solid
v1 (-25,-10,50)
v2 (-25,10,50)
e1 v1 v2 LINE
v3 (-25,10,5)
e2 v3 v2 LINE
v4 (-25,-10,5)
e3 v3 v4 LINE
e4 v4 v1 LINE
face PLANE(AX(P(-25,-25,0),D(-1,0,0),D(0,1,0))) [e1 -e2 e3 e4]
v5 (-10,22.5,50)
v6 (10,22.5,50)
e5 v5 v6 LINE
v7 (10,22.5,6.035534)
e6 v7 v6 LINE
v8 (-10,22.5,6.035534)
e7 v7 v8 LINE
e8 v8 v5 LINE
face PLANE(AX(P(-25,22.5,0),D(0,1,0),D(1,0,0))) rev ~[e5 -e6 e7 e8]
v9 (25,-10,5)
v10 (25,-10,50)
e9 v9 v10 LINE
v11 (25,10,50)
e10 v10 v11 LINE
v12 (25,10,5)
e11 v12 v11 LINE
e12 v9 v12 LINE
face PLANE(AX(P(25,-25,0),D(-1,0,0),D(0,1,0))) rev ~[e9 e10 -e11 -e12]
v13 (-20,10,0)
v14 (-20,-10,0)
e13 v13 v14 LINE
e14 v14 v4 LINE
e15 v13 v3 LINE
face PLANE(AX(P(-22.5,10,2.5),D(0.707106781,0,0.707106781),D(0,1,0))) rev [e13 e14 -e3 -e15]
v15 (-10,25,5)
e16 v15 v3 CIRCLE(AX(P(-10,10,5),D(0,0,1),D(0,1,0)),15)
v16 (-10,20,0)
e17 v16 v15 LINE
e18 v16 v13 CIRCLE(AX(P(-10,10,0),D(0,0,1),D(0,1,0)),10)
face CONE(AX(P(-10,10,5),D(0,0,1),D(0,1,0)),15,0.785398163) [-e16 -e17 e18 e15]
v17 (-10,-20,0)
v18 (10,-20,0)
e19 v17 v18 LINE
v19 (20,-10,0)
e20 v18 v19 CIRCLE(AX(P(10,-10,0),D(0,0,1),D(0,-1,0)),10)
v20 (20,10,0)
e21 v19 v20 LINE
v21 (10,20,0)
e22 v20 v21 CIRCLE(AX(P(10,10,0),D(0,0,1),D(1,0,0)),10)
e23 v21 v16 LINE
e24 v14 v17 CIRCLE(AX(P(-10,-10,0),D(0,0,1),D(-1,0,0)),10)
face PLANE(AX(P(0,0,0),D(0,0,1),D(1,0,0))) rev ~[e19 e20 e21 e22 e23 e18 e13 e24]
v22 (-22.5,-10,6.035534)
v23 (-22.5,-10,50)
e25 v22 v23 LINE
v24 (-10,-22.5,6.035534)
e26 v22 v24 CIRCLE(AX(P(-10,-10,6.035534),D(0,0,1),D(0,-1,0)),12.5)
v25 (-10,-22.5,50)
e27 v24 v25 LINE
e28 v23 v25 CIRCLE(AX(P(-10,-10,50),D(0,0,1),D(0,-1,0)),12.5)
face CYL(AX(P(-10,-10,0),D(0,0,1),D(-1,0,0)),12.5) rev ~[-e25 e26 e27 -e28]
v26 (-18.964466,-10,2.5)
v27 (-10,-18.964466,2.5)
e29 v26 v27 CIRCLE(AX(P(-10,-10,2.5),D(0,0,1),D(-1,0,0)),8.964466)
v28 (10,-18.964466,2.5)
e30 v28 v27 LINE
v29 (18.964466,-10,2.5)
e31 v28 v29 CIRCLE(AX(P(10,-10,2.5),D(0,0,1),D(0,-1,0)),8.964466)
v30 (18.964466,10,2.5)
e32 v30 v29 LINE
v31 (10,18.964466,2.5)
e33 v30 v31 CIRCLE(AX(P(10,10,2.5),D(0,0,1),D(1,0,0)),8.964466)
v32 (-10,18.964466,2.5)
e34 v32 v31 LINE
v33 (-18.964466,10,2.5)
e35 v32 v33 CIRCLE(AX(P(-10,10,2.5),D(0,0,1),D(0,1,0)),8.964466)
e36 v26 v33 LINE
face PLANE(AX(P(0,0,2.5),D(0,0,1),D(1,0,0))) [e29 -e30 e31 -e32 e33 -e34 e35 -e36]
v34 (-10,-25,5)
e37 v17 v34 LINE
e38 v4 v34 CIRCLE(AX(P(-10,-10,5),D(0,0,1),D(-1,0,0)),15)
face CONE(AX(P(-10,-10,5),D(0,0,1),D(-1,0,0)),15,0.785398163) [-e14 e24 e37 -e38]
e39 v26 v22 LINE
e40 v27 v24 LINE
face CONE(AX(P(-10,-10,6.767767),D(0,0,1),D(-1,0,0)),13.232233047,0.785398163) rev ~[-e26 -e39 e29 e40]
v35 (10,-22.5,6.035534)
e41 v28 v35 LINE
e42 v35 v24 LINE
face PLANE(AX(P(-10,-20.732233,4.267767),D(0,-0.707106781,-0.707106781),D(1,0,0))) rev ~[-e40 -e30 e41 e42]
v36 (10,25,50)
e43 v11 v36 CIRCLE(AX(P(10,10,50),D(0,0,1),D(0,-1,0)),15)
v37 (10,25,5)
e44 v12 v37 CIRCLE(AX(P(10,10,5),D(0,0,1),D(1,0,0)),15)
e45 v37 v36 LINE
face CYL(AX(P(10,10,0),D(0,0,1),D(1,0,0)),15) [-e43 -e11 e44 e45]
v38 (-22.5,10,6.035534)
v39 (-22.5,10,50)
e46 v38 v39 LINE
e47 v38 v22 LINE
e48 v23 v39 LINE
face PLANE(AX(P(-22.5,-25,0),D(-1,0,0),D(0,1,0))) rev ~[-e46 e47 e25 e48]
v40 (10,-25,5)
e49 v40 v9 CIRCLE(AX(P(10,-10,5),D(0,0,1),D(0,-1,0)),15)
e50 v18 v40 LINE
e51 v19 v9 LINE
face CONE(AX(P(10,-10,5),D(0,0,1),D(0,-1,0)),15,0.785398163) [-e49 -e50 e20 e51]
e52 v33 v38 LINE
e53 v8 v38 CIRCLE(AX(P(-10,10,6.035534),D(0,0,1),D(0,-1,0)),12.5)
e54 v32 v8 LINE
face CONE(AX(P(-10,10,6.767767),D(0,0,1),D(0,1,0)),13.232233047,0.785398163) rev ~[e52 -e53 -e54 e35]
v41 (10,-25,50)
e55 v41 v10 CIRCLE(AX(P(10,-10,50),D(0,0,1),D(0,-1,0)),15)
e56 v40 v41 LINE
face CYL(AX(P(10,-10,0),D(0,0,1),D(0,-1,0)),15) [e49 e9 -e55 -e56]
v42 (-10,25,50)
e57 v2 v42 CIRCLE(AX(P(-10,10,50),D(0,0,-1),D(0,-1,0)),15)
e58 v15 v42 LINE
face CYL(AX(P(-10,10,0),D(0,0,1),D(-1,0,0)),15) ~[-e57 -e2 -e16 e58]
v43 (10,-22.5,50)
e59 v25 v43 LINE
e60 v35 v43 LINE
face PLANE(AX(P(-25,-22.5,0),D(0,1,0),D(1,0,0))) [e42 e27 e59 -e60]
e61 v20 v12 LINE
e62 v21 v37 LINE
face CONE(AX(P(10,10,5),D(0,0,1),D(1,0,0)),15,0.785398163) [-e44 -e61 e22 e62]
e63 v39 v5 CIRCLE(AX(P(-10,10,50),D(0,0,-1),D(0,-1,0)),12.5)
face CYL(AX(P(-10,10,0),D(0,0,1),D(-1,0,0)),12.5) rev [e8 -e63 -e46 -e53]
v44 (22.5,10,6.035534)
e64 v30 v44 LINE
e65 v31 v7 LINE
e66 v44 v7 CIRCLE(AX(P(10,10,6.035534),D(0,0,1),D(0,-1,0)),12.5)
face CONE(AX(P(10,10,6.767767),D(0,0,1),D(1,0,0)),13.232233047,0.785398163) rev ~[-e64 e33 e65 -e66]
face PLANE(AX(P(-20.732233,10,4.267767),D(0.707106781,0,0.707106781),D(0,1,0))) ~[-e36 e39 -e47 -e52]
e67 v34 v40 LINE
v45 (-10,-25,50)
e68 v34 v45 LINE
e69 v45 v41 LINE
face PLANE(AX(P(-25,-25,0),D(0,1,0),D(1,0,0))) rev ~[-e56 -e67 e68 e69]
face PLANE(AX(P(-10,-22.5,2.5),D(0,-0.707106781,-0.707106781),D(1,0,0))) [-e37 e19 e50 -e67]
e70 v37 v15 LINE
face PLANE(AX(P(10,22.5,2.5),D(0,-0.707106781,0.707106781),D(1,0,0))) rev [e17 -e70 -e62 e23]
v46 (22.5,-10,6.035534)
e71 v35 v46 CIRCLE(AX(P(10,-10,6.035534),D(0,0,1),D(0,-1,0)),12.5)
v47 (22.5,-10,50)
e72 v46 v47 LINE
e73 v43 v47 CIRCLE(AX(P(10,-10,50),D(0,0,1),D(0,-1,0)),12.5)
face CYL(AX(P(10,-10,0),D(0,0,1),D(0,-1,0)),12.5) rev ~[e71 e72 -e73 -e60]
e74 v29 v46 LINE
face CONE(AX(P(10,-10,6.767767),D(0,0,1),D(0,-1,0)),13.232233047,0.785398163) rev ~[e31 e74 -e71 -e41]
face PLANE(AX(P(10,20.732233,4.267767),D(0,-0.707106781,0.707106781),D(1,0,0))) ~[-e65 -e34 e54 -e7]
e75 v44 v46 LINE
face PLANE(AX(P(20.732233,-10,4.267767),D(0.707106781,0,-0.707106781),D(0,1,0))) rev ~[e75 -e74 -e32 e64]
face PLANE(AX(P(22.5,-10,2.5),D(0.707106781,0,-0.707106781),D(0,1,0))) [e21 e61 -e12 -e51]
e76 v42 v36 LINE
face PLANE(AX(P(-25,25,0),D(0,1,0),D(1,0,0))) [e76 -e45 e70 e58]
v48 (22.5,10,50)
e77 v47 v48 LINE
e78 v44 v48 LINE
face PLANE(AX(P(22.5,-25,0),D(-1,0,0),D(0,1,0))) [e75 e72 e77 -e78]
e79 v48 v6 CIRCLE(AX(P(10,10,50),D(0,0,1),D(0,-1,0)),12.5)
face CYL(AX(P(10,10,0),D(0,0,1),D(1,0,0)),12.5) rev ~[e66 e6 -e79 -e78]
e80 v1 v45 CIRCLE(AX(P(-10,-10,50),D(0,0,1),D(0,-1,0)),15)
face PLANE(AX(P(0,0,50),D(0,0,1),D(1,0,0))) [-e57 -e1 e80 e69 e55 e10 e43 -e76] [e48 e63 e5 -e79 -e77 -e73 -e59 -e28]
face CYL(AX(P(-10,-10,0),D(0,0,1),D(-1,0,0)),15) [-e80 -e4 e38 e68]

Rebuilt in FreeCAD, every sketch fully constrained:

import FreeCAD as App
import Part
import Sketcher
Q = App.Units.Quantity


def edges_at(feature, points):
    """Names of the edges that pass closest to the given points."""
    edges = feature.Shape.Edges
    near = lambda p: min(range(len(edges)), key=lambda i: edges[i].distToShape(Part.Vertex(*p))[0])
    return sorted({f"Edge{near(p) + 1}" for p in points})


def faces_at(feature, points):
    """Names of the faces that lie closest to the given points."""
    faces = feature.Shape.Faces
    near = lambda p: min(range(len(faces)), key=lambda i: faces[i].distToShape(Part.Vertex(*p))[0])
    return sorted({f"Face{near(p) + 1}" for p in points})

doc = App.newDocument("Part")
body = doc.addObject("PartDesign::Body", "Body")

# Sketch on XY plane
sketch1 = body.newObject("Sketcher::SketchObject", "Sketch")
sketch1.AttachmentSupport = (doc.getObject("XY_Plane"), [""])
sketch1.MapMode = "FlatFace"
sketch1.addGeometry(Part.LineSegment(App.Vector(-25, 25, 0), App.Vector(-25, -25, 0)), False)
sketch1.addGeometry(Part.LineSegment(App.Vector(-25, -25, 0), App.Vector(25, -25, 0)), False)
sketch1.addGeometry(Part.LineSegment(App.Vector(25, -25, 0), App.Vector(25, 25, 0)), False)
sketch1.addGeometry(Part.LineSegment(App.Vector(25, 25, 0), App.Vector(-25, 25, 0)), False)
sketch1.addConstraint(Sketcher.Constraint("Coincident", 0, 2, 1, 1))
sketch1.addConstraint(Sketcher.Constraint("Coincident", 1, 2, 2, 1))
sketch1.addConstraint(Sketcher.Constraint("Coincident", 2, 2, 3, 1))
sketch1.addConstraint(Sketcher.Constraint("Coincident", 3, 2, 0, 1))
sketch1.addConstraint(Sketcher.Constraint("Vertical", 0))
sketch1.addConstraint(Sketcher.Constraint("Horizontal", 1))
sketch1.addConstraint(Sketcher.Constraint("Vertical", 2))
sketch1.addConstraint(Sketcher.Constraint("Horizontal", 3))
sketch1.addConstraint(Sketcher.Constraint("Symmetric", 0, 2, 2, 2, -1, 1))
sketch1.addConstraint(Sketcher.Constraint("Equal", 3, 0))
sketch1.addConstraint(Sketcher.Constraint("DistanceX", 1, 1, 1, 2, Q("50 mm")))
pad1 = body.newObject("PartDesign::Pad", "Pad")
pad1.Profile = sketch1
pad1.Length = 50
doc.recompute()

fillet = body.newObject("PartDesign::Fillet", "Fillet")
fillet.Base = (pad1, edges_at(pad1, [
    (-25, -25, 25),
    (25, -25, 25),
    (25, 25, 25),
    (-25, 25, 25),
]))
fillet.Radius = 15
doc.recompute()

chamfer = body.newObject("PartDesign::Chamfer", "Chamfer")
chamfer.Base = (fillet, edges_at(fillet, [
    (20.607, 20.607, 0),
    (20.607, -20.607, 0),
    (-20.607, -20.607, 0),
    (-20.607, 20.607, 0),
]))
chamfer.Size = 5
doc.recompute()

thickness = body.newObject("PartDesign::Thickness", "Thickness")
thickness.Base = (chamfer, faces_at(chamfer, [(0, 0, 50)]))
thickness.Value = 2.5
thickness.Reversed = True
thickness.Join = "Arc"

doc.recompute()
